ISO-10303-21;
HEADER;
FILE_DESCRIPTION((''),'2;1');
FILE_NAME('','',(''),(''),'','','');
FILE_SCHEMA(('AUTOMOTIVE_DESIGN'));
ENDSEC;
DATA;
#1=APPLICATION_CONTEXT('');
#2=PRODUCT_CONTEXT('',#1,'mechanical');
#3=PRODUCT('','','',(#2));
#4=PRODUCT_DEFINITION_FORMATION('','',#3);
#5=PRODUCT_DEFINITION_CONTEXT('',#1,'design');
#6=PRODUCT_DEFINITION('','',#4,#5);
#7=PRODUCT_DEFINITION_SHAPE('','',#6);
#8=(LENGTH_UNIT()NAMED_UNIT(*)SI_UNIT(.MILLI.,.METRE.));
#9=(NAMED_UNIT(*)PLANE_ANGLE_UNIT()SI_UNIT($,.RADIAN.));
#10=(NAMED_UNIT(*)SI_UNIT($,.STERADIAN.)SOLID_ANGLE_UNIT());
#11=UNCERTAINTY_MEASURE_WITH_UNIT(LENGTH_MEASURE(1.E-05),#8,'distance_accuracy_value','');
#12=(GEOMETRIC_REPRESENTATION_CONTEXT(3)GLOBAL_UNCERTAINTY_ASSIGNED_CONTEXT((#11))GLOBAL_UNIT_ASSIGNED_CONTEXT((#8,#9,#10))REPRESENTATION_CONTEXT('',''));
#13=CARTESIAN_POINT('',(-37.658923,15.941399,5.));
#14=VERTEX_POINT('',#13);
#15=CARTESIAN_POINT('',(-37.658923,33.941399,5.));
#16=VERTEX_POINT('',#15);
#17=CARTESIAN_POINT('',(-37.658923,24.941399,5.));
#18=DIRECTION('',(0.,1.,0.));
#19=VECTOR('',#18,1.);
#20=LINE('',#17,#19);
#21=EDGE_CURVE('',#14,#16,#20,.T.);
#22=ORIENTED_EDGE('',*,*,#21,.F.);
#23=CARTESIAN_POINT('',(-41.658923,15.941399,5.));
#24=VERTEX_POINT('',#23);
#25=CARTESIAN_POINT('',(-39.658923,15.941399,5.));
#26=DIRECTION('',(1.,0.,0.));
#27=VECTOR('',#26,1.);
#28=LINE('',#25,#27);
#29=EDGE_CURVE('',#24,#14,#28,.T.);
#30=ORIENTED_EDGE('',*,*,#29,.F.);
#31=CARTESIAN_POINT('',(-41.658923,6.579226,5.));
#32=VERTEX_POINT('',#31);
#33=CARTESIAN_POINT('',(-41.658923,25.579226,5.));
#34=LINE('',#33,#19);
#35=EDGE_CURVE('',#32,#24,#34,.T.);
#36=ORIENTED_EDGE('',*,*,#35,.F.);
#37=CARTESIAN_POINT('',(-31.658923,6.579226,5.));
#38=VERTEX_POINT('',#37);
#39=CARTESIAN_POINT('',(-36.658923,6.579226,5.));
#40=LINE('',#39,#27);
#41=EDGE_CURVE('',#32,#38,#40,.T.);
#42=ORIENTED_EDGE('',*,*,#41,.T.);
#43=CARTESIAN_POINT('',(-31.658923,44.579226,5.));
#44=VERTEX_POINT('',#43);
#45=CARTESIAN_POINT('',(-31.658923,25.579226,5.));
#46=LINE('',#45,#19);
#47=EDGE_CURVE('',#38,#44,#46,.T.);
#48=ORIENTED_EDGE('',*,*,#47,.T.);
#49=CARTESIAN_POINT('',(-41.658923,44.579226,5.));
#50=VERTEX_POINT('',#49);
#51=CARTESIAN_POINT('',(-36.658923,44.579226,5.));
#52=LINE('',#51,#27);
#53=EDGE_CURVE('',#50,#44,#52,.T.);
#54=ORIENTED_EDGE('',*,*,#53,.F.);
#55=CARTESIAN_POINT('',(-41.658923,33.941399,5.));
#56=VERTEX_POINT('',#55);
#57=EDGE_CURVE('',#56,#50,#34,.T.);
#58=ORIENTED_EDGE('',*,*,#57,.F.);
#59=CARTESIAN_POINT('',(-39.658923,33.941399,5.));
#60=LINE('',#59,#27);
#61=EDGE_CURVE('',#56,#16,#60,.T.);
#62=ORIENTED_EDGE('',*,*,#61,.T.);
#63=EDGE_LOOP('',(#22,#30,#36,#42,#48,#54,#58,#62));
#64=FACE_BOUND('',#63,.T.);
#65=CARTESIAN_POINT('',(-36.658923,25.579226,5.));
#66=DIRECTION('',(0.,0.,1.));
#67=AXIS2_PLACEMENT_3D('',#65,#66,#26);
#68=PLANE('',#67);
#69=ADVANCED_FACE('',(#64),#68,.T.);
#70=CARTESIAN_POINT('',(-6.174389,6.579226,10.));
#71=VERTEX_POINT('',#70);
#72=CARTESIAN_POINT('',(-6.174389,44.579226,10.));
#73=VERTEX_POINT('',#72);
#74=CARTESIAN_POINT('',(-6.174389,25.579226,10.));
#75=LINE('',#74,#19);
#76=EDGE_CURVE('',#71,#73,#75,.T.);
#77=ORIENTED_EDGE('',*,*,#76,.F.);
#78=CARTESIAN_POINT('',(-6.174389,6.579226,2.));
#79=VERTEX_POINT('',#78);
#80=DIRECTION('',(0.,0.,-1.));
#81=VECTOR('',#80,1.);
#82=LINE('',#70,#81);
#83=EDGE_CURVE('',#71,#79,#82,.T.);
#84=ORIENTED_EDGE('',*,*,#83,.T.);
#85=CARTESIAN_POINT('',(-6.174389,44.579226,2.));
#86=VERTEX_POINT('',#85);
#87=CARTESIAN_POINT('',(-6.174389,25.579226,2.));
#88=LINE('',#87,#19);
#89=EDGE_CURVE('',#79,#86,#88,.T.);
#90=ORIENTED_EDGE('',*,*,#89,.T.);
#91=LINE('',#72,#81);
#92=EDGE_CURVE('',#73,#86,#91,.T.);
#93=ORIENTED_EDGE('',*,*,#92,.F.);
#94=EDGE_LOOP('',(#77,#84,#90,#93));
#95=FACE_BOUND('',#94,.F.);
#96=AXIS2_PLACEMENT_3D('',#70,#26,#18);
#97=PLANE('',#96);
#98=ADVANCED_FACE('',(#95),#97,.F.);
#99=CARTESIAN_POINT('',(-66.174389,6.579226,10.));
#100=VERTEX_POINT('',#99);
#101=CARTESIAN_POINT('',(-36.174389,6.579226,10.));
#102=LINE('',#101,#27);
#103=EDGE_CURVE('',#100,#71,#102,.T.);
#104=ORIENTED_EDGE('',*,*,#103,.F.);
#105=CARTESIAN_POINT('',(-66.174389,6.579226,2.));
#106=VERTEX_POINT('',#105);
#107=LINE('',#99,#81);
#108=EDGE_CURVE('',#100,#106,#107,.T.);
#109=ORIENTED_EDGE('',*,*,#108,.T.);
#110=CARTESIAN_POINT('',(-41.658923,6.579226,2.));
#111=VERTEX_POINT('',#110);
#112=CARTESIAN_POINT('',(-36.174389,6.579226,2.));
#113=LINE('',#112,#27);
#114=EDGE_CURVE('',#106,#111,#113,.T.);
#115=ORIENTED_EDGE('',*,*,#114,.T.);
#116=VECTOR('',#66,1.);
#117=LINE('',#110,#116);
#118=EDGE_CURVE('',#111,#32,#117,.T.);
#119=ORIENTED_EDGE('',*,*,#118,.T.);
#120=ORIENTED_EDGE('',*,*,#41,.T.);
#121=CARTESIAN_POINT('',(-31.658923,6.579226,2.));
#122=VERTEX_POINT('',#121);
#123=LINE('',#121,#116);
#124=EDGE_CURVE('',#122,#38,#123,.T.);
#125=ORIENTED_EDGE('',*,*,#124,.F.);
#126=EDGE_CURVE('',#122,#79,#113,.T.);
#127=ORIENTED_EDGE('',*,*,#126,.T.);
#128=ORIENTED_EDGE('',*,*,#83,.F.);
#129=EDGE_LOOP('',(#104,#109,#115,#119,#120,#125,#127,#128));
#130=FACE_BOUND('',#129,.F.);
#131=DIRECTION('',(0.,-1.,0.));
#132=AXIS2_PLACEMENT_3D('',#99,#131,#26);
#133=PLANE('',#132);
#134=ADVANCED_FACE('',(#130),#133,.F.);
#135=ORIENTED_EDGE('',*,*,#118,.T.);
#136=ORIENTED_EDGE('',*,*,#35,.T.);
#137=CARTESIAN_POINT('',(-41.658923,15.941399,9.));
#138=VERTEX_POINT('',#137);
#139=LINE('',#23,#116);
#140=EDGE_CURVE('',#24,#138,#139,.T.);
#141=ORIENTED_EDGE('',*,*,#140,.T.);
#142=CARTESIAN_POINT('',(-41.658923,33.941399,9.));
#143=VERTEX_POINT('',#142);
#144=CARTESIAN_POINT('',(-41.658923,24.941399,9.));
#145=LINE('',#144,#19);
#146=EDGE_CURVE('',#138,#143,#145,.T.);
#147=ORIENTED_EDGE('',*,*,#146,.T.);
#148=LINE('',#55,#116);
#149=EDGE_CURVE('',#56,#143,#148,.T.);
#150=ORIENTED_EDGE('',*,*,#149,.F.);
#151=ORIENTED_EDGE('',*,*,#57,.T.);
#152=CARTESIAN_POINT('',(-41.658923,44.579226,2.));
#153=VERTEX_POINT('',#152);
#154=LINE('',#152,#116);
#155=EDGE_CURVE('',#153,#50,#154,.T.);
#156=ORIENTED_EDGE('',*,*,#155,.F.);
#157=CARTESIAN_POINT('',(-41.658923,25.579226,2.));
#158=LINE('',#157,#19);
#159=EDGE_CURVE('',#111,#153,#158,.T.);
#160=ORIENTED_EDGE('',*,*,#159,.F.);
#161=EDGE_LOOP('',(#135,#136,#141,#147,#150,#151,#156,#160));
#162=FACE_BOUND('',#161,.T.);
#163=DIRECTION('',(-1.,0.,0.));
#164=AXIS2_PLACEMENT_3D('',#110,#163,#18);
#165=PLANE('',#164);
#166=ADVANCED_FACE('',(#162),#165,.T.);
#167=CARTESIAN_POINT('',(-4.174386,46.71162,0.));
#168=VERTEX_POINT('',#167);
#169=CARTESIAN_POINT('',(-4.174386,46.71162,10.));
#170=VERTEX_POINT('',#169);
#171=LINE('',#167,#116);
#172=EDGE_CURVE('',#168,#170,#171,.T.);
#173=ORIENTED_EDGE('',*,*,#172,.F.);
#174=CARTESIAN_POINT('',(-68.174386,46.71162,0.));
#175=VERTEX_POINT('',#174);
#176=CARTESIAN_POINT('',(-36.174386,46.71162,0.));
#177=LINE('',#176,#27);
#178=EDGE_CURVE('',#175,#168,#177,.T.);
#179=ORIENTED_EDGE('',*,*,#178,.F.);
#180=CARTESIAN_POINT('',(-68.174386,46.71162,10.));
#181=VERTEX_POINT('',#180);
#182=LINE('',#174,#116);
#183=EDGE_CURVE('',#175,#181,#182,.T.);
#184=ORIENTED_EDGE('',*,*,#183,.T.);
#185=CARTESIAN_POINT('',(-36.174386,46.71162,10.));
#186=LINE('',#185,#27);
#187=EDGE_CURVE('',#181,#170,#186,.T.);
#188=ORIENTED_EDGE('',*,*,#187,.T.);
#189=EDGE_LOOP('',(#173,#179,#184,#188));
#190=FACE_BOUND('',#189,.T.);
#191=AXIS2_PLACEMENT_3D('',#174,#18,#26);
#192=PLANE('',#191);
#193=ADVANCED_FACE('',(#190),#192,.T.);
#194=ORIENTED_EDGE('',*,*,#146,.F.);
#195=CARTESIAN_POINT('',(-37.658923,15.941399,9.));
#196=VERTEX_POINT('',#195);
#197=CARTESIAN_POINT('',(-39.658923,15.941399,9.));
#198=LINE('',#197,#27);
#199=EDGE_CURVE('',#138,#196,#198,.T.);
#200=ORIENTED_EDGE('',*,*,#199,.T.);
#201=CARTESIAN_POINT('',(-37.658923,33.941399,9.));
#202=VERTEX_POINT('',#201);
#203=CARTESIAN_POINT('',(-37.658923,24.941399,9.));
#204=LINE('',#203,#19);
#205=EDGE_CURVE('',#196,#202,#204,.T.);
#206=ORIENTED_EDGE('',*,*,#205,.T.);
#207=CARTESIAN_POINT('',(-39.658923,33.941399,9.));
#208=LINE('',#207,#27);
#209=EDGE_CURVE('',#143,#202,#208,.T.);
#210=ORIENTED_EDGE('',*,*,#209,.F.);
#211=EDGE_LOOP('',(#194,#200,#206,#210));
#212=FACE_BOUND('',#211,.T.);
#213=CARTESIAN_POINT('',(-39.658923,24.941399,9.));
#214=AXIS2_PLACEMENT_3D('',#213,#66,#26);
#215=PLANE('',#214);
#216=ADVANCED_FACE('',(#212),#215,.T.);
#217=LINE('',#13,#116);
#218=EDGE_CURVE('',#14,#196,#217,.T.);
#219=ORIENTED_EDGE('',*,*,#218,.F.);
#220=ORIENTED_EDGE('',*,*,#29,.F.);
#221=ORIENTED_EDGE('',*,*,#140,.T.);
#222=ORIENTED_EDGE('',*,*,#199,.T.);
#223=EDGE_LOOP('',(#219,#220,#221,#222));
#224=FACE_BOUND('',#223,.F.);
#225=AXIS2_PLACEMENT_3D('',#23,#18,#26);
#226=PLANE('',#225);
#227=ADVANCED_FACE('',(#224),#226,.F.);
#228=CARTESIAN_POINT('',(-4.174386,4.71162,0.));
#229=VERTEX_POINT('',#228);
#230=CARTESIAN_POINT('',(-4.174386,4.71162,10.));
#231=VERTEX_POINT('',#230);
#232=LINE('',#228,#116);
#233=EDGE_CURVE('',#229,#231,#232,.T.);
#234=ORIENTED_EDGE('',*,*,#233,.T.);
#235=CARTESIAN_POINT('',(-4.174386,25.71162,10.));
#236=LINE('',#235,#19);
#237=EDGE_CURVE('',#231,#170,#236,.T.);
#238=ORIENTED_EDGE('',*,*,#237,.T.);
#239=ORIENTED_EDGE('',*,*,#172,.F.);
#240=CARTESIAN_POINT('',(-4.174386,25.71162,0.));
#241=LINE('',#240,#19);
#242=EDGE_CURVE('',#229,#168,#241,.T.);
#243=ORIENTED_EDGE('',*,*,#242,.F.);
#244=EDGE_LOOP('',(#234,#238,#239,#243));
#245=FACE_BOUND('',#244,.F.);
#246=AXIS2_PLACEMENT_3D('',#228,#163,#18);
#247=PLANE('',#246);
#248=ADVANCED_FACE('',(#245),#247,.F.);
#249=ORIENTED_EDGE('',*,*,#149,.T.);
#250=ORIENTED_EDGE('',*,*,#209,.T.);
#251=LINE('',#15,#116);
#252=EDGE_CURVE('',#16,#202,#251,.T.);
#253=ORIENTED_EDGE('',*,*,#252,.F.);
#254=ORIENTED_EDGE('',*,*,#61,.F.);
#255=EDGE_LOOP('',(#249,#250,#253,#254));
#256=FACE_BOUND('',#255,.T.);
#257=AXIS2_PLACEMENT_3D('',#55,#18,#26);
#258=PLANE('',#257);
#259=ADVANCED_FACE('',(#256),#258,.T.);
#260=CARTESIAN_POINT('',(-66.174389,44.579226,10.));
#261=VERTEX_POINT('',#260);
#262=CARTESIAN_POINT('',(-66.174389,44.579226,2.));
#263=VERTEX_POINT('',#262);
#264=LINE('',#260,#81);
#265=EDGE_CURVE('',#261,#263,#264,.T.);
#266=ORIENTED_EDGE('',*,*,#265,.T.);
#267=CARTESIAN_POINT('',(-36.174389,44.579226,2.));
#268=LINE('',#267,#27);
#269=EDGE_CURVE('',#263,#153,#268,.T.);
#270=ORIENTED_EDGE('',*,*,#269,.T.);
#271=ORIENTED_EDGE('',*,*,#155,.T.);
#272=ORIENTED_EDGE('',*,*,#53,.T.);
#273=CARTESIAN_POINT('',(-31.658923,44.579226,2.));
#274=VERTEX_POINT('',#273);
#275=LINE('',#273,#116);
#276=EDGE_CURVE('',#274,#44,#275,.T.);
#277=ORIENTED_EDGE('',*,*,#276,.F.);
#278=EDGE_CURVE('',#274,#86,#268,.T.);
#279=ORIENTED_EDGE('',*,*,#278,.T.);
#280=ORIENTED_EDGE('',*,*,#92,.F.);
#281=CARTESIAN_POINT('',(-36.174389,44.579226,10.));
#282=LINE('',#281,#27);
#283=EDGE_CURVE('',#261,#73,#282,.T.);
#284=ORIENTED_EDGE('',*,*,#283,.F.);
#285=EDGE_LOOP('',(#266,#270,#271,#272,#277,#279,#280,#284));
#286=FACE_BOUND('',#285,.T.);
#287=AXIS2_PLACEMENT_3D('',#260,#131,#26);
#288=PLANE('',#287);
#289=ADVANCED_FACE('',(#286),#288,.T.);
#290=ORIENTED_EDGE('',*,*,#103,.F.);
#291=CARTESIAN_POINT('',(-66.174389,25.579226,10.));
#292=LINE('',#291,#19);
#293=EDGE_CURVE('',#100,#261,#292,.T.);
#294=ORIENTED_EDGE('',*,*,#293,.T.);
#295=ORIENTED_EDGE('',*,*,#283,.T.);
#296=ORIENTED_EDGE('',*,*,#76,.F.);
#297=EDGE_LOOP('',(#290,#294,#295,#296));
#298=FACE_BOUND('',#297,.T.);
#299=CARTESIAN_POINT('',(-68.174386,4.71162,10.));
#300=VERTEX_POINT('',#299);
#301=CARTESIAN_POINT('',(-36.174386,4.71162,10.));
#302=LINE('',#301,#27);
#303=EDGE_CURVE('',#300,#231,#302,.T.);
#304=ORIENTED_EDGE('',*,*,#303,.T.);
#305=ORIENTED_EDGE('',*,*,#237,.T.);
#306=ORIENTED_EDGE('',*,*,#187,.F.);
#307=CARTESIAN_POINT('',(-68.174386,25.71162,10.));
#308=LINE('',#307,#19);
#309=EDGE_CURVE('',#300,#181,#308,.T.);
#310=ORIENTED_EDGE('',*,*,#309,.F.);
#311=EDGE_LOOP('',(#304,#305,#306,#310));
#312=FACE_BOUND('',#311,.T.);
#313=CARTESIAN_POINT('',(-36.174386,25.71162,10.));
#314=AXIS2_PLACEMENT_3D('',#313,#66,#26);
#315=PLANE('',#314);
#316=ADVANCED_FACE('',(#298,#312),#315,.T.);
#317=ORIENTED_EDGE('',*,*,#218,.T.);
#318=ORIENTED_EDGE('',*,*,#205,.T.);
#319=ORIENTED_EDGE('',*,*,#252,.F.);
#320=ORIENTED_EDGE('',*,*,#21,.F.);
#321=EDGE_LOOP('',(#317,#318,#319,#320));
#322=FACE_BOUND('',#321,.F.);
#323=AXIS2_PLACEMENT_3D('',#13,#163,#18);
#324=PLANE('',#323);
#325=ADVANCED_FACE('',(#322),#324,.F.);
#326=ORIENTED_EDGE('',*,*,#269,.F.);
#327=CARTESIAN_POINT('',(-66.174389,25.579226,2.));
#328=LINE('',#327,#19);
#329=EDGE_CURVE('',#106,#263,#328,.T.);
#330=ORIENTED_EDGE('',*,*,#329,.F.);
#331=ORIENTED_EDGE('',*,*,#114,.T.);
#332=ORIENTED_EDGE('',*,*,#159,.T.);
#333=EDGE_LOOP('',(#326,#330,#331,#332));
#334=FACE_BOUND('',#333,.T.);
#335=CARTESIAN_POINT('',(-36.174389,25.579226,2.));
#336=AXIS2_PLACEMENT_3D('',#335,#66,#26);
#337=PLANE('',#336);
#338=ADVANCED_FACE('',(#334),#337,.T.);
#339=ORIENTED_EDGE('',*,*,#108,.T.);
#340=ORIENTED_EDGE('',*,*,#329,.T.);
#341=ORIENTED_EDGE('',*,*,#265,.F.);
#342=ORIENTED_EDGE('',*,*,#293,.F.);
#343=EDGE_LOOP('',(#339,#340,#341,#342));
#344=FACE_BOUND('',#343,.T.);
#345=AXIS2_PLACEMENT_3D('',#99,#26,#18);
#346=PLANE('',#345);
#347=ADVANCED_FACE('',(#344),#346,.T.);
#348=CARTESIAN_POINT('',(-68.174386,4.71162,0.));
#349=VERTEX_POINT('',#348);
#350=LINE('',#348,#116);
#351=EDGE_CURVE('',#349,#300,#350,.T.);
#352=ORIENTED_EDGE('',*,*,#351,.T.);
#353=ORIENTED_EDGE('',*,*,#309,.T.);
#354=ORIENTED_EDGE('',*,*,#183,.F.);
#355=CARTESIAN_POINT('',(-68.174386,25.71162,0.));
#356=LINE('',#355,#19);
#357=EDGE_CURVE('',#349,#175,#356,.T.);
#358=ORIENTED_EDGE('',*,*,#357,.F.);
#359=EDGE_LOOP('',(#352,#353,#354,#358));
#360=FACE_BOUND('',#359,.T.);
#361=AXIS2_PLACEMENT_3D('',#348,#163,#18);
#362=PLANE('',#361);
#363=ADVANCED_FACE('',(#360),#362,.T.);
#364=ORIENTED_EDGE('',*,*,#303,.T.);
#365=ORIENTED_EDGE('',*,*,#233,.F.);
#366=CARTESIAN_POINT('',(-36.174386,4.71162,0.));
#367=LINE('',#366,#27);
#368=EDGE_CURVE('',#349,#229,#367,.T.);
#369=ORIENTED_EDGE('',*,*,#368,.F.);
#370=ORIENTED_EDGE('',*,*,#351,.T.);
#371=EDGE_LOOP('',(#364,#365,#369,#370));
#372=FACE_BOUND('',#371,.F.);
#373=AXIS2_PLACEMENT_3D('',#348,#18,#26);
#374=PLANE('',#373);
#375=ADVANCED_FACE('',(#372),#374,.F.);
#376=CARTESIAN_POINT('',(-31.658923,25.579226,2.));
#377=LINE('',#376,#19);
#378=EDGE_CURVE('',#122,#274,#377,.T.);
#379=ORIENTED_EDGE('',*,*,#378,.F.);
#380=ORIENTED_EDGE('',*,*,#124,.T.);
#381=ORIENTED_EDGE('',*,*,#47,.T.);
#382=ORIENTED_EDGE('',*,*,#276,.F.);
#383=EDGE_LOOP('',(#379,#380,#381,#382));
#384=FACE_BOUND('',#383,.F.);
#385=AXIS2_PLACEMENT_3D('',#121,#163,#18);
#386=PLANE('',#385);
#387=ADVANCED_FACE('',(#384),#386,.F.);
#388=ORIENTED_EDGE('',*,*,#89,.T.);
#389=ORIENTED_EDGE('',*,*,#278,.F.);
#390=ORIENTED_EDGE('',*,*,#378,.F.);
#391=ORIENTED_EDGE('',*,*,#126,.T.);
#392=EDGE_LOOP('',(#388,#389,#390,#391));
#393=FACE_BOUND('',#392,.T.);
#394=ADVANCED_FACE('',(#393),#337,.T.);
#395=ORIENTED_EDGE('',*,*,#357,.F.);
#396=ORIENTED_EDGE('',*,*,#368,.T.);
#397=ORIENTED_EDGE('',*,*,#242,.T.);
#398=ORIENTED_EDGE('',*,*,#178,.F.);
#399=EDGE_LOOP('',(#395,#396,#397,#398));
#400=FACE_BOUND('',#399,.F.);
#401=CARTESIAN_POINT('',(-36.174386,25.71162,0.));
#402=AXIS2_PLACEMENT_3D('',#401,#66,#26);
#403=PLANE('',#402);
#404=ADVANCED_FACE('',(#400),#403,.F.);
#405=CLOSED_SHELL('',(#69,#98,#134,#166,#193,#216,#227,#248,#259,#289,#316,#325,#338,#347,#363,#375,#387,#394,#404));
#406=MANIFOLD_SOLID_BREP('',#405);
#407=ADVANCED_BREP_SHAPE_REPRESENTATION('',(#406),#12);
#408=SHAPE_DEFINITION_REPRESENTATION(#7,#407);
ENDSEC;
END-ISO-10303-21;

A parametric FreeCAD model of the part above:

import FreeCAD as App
import Part
import Sketcher


def add_polygon(sketch, points):
    """Adds a closed chain of lines whose ends are joined by coincident constraints."""
    first, n = sketch.GeometryCount, len(points)
    for a, b in zip(points, points[1:] + points[:1]):
        sketch.addGeometry(Part.LineSegment(App.Vector(*a, 0), App.Vector(*b, 0)), False)
    for i in range(n):
        sketch.addConstraint(Sketcher.Constraint("Coincident", first + i, 2, first + (i + 1) % n, 1))

doc = App.newDocument("Part")
body = doc.addObject("PartDesign::Body", "Body")

# Sketch on XY plane
sketch1 = doc.addObject("Sketcher::SketchObject", "Sketch")
body.addObject(sketch1)
sketch1.AttachmentSupport = (doc.XY_Plane, [""])
sketch1.MapMode = "FlatFace"
add_polygon(sketch1, [(-68, 47), (-68, 5), (-4, 5), (-4, 47)])  # lines 0-3
sketch1.addConstraint([
    Sketcher.Constraint("Vertical", 0),
    Sketcher.Constraint("Horizontal", 1),
    Sketcher.Constraint("Vertical", 2),
    Sketcher.Constraint("Horizontal", 3),
    Sketcher.Constraint("DistanceX", 1, 1, 1, 2, 64.0),
    Sketcher.Constraint("DistanceY", 0, 2, 0, 1, 42.0),
    Sketcher.Constraint("DistanceY", -1, 1, 0, 2, 4.71162),
    Sketcher.Constraint("DistanceX", 0, 2, -1, 1, 68.174386),
])
pad1 = doc.addObject("PartDesign::Pad", "Pad")
body.addObject(pad1)
pad1.Profile = sketch1
pad1.Length = 10

# Sketch on XY plane
sketch2 = doc.addObject("Sketcher::SketchObject", "Sketch001")
body.addObject(sketch2)
sketch2.AttachmentSupport = (doc.XY_Plane, [""])
sketch2.MapMode = "FlatFace"
sketch2.AttachmentOffset = App.Placement(App.Vector(0, 0, 10), App.Rotation())
add_polygon(sketch2, [(-66, 45), (-66, 7), (-6, 7), (-6, 45)])  # lines 0-3
sketch2.addConstraint([
    Sketcher.Constraint("Vertical", 0),
    Sketcher.Constraint("Horizontal", 1),
    Sketcher.Constraint("Vertical", 2),
    Sketcher.Constraint("Horizontal", 3),
    Sketcher.Constraint("DistanceX", 1, 1, 1, 2, 60.0),
    Sketcher.Constraint("DistanceY", 0, 2, 0, 1, 38.0),
    Sketcher.Constraint("DistanceX", 0, 2, -1, 1, 66.174389),
    Sketcher.Constraint("DistanceY", -1, 1, 0, 2, 6.579226),
])
pocket1 = doc.addObject("PartDesign::Pocket", "Pocket")
body.addObject(pocket1)
pocket1.Profile = sketch2
pocket1.Length = 8

# Sketch on XY plane
sketch3 = doc.addObject("Sketcher::SketchObject", "Sketch002")
body.addObject(sketch3)
sketch3.AttachmentSupport = (doc.XY_Plane, [""])
sketch3.MapMode = "FlatFace"
sketch3.AttachmentOffset = App.Placement(App.Vector(0, 0, 2), App.Rotation())
add_polygon(sketch3, [(-42, 45), (-42, 7), (-32, 7), (-32, 45)])  # lines 0-3
sketch3.addConstraint([
    Sketcher.Constraint("Vertical", 0),
    Sketcher.Constraint("Horizontal", 1),
    Sketcher.Constraint("Vertical", 2),
    Sketcher.Constraint("Horizontal", 3),
    Sketcher.Constraint("DistanceX", 1, 1, 1, 2, 10.0),
    Sketcher.Constraint("DistanceY", 0, 2, 0, 1, 38.0),
    Sketcher.Constraint("DistanceX", 0, 2, -1, 1, 41.658923),
    Sketcher.Constraint("DistanceY", -1, 1, 0, 2, 6.579226),
])
pad2 = doc.addObject("PartDesign::Pad", "Pad001")
body.addObject(pad2)
pad2.Profile = sketch3
pad2.Length = 3

# Sketch on XY plane
sketch4 = doc.addObject("Sketcher::SketchObject", "Sketch003")
body.addObject(sketch4)
sketch4.AttachmentSupport = (doc.XY_Plane, [""])
sketch4.MapMode = "FlatFace"
sketch4.AttachmentOffset = App.Placement(App.Vector(0, 0, 5), App.Rotation())
add_polygon(sketch4, [(-41.7, 33.9), (-41.7, 15.9), (-37.7, 15.9), (-37.7, 33.9)])  # lines 0-3
sketch4.addConstraint([
    Sketcher.Constraint("Vertical", 0),
    Sketcher.Constraint("Horizontal", 1),
    Sketcher.Constraint("Vertical", 2),
    Sketcher.Constraint("Horizontal", 3),
    Sketcher.Constraint("DistanceX", 1, 1, 1, 2, 4.0),
    Sketcher.Constraint("DistanceY", 0, 2, 0, 1, 18.0),
    Sketcher.Constraint("DistanceY", -1, 1, 0, 2, 15.941399),
    Sketcher.Constraint("DistanceX", 0, 2, -1, 1, 41.658923),
])
pad3 = doc.addObject("PartDesign::Pad", "Pad002")
body.addObject(pad3)
pad3.Profile = sketch4
pad3.Length = 4

doc.recompute()
